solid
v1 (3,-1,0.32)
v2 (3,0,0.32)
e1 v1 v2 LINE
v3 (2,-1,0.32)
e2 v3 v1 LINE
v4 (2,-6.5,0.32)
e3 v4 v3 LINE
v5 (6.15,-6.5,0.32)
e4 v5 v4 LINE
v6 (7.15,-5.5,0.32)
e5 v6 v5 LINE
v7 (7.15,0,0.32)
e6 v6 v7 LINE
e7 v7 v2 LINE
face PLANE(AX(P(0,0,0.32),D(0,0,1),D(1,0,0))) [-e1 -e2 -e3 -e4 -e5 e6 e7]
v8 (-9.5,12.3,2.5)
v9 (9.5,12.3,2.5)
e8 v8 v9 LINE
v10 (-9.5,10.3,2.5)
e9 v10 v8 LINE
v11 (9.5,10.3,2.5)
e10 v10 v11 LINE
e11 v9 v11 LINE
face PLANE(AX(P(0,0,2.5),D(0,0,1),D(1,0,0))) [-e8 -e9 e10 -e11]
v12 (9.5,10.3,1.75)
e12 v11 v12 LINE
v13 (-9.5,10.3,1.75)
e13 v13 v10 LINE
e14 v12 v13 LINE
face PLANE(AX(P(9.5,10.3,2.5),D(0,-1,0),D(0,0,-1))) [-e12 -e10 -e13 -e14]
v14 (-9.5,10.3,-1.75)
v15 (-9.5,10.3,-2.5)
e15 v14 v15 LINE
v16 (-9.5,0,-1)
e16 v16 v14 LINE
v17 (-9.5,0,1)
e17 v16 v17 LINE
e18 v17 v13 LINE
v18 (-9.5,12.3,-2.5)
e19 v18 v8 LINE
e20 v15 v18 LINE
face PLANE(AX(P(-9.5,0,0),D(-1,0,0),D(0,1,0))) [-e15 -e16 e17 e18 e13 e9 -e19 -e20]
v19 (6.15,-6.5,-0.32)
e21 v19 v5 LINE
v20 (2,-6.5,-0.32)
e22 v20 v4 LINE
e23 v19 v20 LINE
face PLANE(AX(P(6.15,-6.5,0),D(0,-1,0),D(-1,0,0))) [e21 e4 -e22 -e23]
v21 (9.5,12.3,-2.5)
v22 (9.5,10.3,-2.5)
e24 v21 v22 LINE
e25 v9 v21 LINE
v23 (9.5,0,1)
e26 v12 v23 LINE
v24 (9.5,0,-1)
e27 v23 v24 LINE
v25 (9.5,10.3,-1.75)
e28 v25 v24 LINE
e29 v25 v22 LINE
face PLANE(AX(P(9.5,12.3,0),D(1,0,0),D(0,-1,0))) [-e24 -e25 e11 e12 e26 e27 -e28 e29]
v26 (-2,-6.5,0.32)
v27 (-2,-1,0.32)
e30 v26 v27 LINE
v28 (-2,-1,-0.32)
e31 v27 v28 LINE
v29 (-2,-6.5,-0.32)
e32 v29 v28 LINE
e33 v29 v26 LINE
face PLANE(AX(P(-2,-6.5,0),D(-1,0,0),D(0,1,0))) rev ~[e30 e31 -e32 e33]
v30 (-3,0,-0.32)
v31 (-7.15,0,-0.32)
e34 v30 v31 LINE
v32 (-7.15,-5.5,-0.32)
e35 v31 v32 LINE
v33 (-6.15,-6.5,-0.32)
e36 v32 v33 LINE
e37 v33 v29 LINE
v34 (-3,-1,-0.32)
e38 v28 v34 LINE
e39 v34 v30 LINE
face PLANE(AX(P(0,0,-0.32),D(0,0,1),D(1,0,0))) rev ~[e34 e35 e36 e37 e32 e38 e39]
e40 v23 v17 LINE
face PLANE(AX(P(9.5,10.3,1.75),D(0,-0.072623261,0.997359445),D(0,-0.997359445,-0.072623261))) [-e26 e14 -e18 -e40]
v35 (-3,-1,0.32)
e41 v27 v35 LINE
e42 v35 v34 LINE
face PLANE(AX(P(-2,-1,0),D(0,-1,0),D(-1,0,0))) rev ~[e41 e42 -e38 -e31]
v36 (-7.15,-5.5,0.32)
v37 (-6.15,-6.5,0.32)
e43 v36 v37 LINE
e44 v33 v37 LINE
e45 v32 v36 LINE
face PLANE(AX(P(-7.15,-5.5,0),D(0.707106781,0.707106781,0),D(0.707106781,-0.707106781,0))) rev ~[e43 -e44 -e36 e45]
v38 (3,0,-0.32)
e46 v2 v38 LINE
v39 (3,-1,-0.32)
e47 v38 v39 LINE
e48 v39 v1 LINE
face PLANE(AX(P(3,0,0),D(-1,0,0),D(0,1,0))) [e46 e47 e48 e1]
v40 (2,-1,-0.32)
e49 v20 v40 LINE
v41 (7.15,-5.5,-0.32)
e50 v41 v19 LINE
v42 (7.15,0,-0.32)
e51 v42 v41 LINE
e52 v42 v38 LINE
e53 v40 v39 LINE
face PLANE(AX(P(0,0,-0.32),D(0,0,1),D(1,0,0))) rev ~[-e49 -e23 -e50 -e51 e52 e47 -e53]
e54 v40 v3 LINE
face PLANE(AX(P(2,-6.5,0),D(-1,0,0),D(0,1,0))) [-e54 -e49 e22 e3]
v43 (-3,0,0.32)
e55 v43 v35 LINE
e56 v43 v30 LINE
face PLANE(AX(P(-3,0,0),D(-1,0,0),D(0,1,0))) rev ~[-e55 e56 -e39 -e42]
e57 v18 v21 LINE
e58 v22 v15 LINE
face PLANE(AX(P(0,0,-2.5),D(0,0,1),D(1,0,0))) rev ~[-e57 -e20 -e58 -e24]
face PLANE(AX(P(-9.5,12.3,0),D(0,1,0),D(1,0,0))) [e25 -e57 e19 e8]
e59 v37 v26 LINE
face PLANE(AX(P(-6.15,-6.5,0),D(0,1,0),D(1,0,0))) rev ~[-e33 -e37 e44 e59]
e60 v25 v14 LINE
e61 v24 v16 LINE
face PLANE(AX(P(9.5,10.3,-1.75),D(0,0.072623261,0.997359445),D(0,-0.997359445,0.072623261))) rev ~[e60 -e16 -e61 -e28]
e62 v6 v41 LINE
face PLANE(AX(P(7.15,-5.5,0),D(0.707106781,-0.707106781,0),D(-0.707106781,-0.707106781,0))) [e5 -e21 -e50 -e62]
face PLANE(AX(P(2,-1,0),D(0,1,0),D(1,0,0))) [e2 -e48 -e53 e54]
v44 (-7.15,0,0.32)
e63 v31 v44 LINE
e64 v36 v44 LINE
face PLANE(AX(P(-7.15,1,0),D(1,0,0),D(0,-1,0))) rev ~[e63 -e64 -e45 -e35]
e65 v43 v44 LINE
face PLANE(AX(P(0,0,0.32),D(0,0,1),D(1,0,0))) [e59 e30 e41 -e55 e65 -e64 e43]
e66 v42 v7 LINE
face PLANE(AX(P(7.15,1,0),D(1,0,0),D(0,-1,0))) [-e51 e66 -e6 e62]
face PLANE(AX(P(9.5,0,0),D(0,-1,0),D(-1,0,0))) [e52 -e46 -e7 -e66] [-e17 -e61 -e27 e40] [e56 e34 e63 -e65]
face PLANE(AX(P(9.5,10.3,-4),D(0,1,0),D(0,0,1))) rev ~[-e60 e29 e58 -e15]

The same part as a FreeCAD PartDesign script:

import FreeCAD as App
import Part
import Sketcher

V = App.Vector


def add_polygon(sketch, points):
    """Adds a closed chain of lines whose ends are joined by coincident constraints."""
    first, n = sketch.GeometryCount, len(points)
    for a, b in zip(points, points[1:] + points[:1]):
        sketch.addGeometry(Part.LineSegment(App.Vector(*a, 0), App.Vector(*b, 0)), False)
    for i in range(n):
        sketch.addConstraint(Sketcher.Constraint("Coincident", first + i, 2, first + (i + 1) % n, 1))

doc = App.newDocument("Part")
params = doc.addObject("Spreadsheet::Sheet", "Params")
for row, (alias, value) in enumerate([
    ("sketch1_width", "19 mm"),
    ("sketch1_height", "12.3 mm"),
    ("pad1_length", "5 mm"),
    ("sketch2_width", "1 mm"),
    ("sketch2_height", "2 mm"),
    ("sketch2_height2", "6.5 mm"),
    ("pad2_length", "0.64 mm"),
    ("sketch3_width", "2 mm"),
    ("sketch3_height", "3 mm"),
    ("sketch3_width2", "12.3 mm"),
], start=1):
    params.set(f"A{row}", alias)
    params.set(f"B{row}", "=" + value)
    params.setAlias(f"B{row}", alias)

body = doc.addObject("PartDesign::Body", "Body")

# Sketch on XY plane
sketch1 = body.newObject("Sketcher::SketchObject", "Sketch")
sketch1.AttachmentSupport = (doc.getObject("XY_Plane"), [""])
sketch1.MapMode = "FlatFace"
add_polygon(sketch1, [(10, 12), (-10, 12), (-10, 0), (10, 0)])  # lines 0-3
sketch1.addConstraint([
    Sketcher.Constraint("Horizontal", 0),
    Sketcher.Constraint("Vertical", 1),
    Sketcher.Constraint("Horizontal", 2),
    Sketcher.Constraint("Vertical", 3),
    Sketcher.Constraint("Symmetric", 1, 2, 2, 2, -1, 1),
    Sketcher.Constraint("DistanceX", 0, 2, 0, 1, 19.0),
    Sketcher.Constraint("DistanceY", 1, 2, 1, 1, 12.3),
])
sketch1.setExpression("Constraints[9]", "Params.sketch1_width")
sketch1.setExpression("Constraints[10]", "Params.sketch1_height")
pad1 = body.newObject("PartDesign::Pad", "Pad")
pad1.Profile = sketch1
pad1.setExpression("Length", "Params.pad1_length")
pad1.Midplane = True

# Sketch on XY plane
sketch2 = body.newObject("Sketcher::SketchObject", "Sketch001")
sketch2.AttachmentSupport = (doc.getObject("XY_Plane"), [""])
sketch2.MapMode = "FlatFace"
add_polygon(sketch2, [(-3, 1), (-7.2, 1), (-7.2, -5.5), (-6.2, -6.5), (-2, -6.5), (-2, -1), (-3, -1)])  # lines 0-6
add_polygon(sketch2, [(3, 1), (3, -1), (2, -1), (2, -6.5), (6.2, -6.5), (7.2, -5.5), (7.2, 1)])  # lines 7-13
sketch2.addConstraint([
    Sketcher.Constraint("Horizontal", 0),
    Sketcher.Constraint("Vertical", 1),
    Sketcher.Constraint("Horizontal", 3),
    Sketcher.Constraint("Vertical", 4),
    Sketcher.Constraint("Horizontal", 5),
    Sketcher.Constraint("Vertical", 6),
    Sketcher.Constraint("Vertical", 7),
    Sketcher.Constraint("Horizontal", 8),
    Sketcher.Constraint("Vertical", 9),
    Sketcher.Constraint("Horizontal", 10),
    Sketcher.Constraint("Vertical", 12),
    Sketcher.Constraint("Horizontal", 13),
    Sketcher.Constraint("Symmetric", 6, 2, 7, 2, -1, 1),
    Sketcher.Constraint("Symmetric", 4, 2, 8, 2, -2),
    Sketcher.Constraint("Symmetric", 2, 2, 10, 2, -2),
    Sketcher.Constraint("Symmetric", 1, 2, 11, 2, -2),
    Sketcher.Constraint("Perpendicular", 2, 11),
    Sketcher.Constraint("Horizontal", 6, 2, 12, 2),
    Sketcher.Constraint("Equal", 0, 3),
    Sketcher.Constraint("DistanceX", 5, 2, 5, 1, 1.0),
    Sketcher.Constraint("DistanceY", 6, 1, 6, 2, 2.0),
    Sketcher.Constraint("DistanceY", 1, 2, 1, 1, 6.5),
    Sketcher.Constraint("DistanceX", 3, 2, -1, 1, 2.0),
    Sketcher.Constraint("DistanceX", 0, 2, -1, 1, 7.15),
])
sketch2.setExpression("Constraints[33]", "Params.sketch2_width")
sketch2.setExpression("Constraints[34]", "Params.sketch2_height")
sketch2.setExpression("Constraints[35]", "Params.sketch2_height2")
pad2 = body.newObject("PartDesign::Pad", "Pad001")
pad2.Profile = sketch2
pad2.setExpression("Length", "Params.pad2_length")
pad2.Midplane = True

# Sketch on YZ plane
sketch3 = body.newObject("Sketcher::SketchObject", "Sketch002")
sketch3.AttachmentSupport = (doc.getObject("YZ_Plane"), [""])
sketch3.MapMode = "FlatFace"
sketch3.AttachmentOffset = App.Placement(V(0, 0, 9.5), App.Rotation())
add_polygon(sketch3, [(10.3, 1.8), (10.3, 4), (-2, 4), (-2, 1), (0, 1)])  # lines 0-4
add_polygon(sketch3, [(10.3, -4), (10.3, -1.8), (0, -1), (-2, -1), (-2, -4)])  # lines 5-9
sketch3.addConstraint([
    Sketcher.Constraint("Vertical", 0),
    Sketcher.Constraint("Horizontal", 1),
    Sketcher.Constraint("Vertical", 2),
    Sketcher.Constraint("Horizontal", 3),
    Sketcher.Constraint("Vertical", 5),
    Sketcher.Constraint("Horizontal", 7),
    Sketcher.Constraint("Vertical", 8),
    Sketcher.Constraint("Horizontal", 9),
    Sketcher.Constraint("Symmetric", 3, 2, 6, 2, -1, 1),
    Sketcher.Constraint("Symmetric", 4, 2, 5, 2, -1),
    Sketcher.Constraint("Symmetric", 1, 2, 8, 2, -1),
    Sketcher.Constraint("PointOnObject", 3, 2, -2),
    Sketcher.Constraint("DistanceX", 3, 1, 3, 2, 2.0),
    Sketcher.Constraint("DistanceY", 6, 2, 3, 2, 2.0),
    Sketcher.Constraint("DistanceY", 2, 2, 2, 1, 3.0),
    Sketcher.Constraint("DistanceY", 3, 2, 4, 2, 0.75),
    Sketcher.Constraint("DistanceX", 1, 2, 1, 1, 12.3),
])
sketch3.setExpression("Constraints[22]", "Params.sketch3_width")
sketch3.setExpression("Constraints[24]", "Params.sketch3_height")
sketch3.setExpression("Constraints[26]", "Params.sketch3_width2")
pocket1 = body.newObject("PartDesign::Pocket", "Pocket")
pocket1.Profile = sketch3
pocket1.Type = "ThroughAll"

doc.recompute()
